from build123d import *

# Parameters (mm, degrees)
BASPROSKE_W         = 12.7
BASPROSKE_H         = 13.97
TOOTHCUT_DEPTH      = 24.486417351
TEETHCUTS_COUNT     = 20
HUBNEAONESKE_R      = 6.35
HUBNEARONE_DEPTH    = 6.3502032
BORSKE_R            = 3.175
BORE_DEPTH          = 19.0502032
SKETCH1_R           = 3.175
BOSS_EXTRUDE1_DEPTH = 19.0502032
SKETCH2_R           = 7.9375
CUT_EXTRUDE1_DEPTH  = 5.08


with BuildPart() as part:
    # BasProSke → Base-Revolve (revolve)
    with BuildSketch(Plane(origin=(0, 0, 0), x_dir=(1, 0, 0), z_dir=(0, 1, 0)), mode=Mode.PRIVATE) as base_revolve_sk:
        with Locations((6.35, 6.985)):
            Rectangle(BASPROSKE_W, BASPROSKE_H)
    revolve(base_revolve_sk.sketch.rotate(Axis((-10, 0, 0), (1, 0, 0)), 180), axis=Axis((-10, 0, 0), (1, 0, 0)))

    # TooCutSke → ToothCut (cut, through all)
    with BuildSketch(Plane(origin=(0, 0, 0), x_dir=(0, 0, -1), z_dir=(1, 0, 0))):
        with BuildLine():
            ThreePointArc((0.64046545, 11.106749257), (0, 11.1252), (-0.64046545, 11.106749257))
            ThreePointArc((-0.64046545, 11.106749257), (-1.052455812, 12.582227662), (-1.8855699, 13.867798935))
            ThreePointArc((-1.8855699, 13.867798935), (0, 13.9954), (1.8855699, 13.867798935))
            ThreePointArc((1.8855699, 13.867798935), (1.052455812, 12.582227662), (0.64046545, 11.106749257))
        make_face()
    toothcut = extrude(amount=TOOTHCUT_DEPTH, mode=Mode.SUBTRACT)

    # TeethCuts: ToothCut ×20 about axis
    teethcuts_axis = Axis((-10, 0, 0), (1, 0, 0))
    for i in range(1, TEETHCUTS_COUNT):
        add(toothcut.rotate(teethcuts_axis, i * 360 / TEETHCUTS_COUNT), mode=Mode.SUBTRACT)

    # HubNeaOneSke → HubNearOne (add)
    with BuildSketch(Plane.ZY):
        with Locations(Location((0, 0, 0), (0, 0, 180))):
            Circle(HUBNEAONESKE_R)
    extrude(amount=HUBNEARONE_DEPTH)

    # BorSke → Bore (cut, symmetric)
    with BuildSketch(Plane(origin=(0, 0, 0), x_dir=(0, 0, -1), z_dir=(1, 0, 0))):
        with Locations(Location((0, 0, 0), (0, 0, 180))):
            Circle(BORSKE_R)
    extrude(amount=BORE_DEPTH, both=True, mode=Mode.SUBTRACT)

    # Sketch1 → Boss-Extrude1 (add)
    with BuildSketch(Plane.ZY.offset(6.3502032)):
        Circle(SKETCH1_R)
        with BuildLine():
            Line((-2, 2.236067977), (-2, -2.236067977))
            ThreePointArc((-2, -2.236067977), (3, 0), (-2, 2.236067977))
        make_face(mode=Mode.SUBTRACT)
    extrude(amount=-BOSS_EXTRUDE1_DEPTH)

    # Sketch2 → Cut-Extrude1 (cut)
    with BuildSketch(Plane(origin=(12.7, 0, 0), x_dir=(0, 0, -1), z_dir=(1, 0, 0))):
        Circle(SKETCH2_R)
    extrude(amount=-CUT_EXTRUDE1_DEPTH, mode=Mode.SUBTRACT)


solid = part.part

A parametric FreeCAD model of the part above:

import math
import FreeCAD as App
import Part
import Sketcher
from FreeCAD import Vector
Q = App.Units.Quantity


def add_polygon(sketch, points):
    """Adds a closed chain of lines whose ends are joined by coincident constraints."""
    first, n = sketch.GeometryCount, len(points)
    for a, b in zip(points, points[1:] + points[:1]):
        sketch.addGeometry(Part.LineSegment(App.Vector(*a, 0), App.Vector(*b, 0)), False)
    for i in range(n):
        sketch.addConstraint(Sketcher.Constraint("Coincident", first + i, 2, first + (i + 1) % n, 1))

doc = App.newDocument("Part")
params = doc.addObject("Spreadsheet::Sheet", "Params")
for row, (alias, value) in enumerate([
    ("sketch1_width", "0.5 in"),
    ("sketch1_height", "0.55 in"),
    ("revolution_angle", "360 deg"),
    ("sketch2_radius", "0.2 in"),
    ("sketch2_radius2", "0.438 in"),
    ("sketch2_radius3", "0.551 in"),
    ("sketch3_diameter", "0.5 in"),
    ("pad1_length", "6.350203 mm"),
    ("sketch4_diameter", "0.25 in"),
    ("pocket2_length", "38.100406 mm"),
    ("sketch5_diameter", "0.25 in"),
    ("pad2_length", "19.050203 mm"),
    ("sketch6_diameter", "0.625 in"),
    ("pocket3_length", "0.2 in"),
], start=1):
    params.set(f"A{row}", alias)
    params.set(f"B{row}", "=" + value)
    params.setAlias(f"B{row}", alias)

body = doc.addObject("PartDesign::Body", "Body")

# Sketch on XZ plane
sketch1 = body.newObject("Sketcher::SketchObject", "Sketch")
sketch1.AttachmentSupport = (doc.getObject("XZ_Plane"), [""])
sketch1.MapMode = "FlatFace"
add_polygon(sketch1, [(0, -14), (0, 0), (13, 0), (13, -14)])  # lines 0-3
sketch1.addConstraint([
    Sketcher.Constraint("Vertical", 0),
    Sketcher.Constraint("Horizontal", 1),
    Sketcher.Constraint("Vertical", 2),
    Sketcher.Constraint("Horizontal", 3),
    Sketcher.Constraint("Coincident", 0, 2, -1, 1),
    Sketcher.Constraint("DistanceX", 1, 1, 1, 2, Q("0.5 in")),
    Sketcher.Constraint("DistanceY", 0, 1, 0, 2, Q("0.55 in")),
])
sketch1.setExpression("Constraints[9]", "Params.sketch1_width")
sketch1.setExpression("Constraints[10]", "Params.sketch1_height")
revolution = body.newObject("PartDesign::Revolution", "Revolution")
revolution.Profile = sketch1
revolution.ReferenceAxis = (sketch1, ["H_Axis"])
revolution.setExpression("Angle", "Params.revolution_angle")

# Sketch on YZ plane
sketch2 = body.newObject("Sketcher::SketchObject", "Sketch001")
sketch2.AttachmentSupport = (doc.getObject("YZ_Plane"), [""])
sketch2.MapMode = "FlatFace"
sketch2.addGeometry([
    Part.ArcOfCircle(Part.Circle(Vector(0, 0, 0), Vector(0, 0, 1), 11.1), math.radians(-3.3), math.radians(3.3)),
    Part.ArcOfCircle(Part.Circle(Vector(10.5, -5.7, 0), Vector(0, 0, 1), 5.1), math.radians(48), math.radians(83)),
    Part.ArcOfCircle(Part.Circle(Vector(0, 0, 0), Vector(0, 0, 1), 14), math.radians(-7.74), math.radians(7.74)),
    Part.ArcOfCircle(Part.Circle(Vector(10.5, 5.7, 0), Vector(0, 0, 1), 5.1), math.radians(-83), math.radians(-48)),
], False)
sketch2.addConstraint([
    Sketcher.Constraint("Coincident", 0, 1, 1, 2),
    Sketcher.Constraint("Coincident", 1, 1, 2, 1),
    Sketcher.Constraint("Coincident", 2, 2, 3, 2),
    Sketcher.Constraint("Coincident", 3, 1, 0, 2),
    Sketcher.Constraint("Coincident", 0, 3, -1, 1),
    Sketcher.Constraint("Coincident", 2, 3, -1, 1),
    Sketcher.Constraint("Equal", 1, 3),
    Sketcher.Constraint("Symmetric", 1, 3, 3, 3, -1),
    Sketcher.Constraint("Radius", 1, Q("0.2 in")),
    Sketcher.Constraint("Radius", 0, Q("0.438 in")),
    Sketcher.Constraint("Radius", 2, Q("0.551 in")),
    Sketcher.Constraint("DistanceX", -1, 1, 1, 1, 13.867799),
    Sketcher.Constraint("DistanceY", 1, 3, 0, 1, 5.042898),
])
sketch2.setExpression("Constraints[8]", "Params.sketch2_radius")
sketch2.setExpression("Constraints[9]", "Params.sketch2_radius2")
sketch2.setExpression("Constraints[10]", "Params.sketch2_radius3")
pocket1 = body.newObject("PartDesign::Pocket", "Pocket")
pocket1.Profile = sketch2
pocket1.Type = "ThroughAll"
pocket1.Reversed = True
doc.recompute()

polarpattern = body.newObject("PartDesign::PolarPattern", "PolarPattern")
polarpattern.Originals = [pocket1]
polarpattern.Axis = (doc.getObject("X_Axis"), [""])
polarpattern.Angle = 360
polarpattern.Occurrences = 20
body.Tip = polarpattern

# Sketch on YZ plane
sketch3 = body.newObject("Sketcher::SketchObject", "Sketch002")
sketch3.AttachmentSupport = (doc.getObject("YZ_Plane"), [""])
sketch3.MapMode = "FlatFace"
sketch3.addGeometry(Part.Circle(Vector(0, 0, 0), Vector(0, 0, 1), 6), False)
sketch3.addConstraint([
    Sketcher.Constraint("Coincident", 0, 3, -1, 1),
    Sketcher.Constraint("Diameter", 0, Q("0.5 in")),
])
sketch3.setExpression("Constraints[1]", "Params.sketch3_diameter")
pad1 = body.newObject("PartDesign::Pad", "Pad")
pad1.Profile = sketch3
pad1.setExpression("Length", "Params.pad1_length")
pad1.Reversed = True

# Sketch on YZ plane
sketch4 = body.newObject("Sketcher::SketchObject", "Sketch003")
sketch4.AttachmentSupport = (doc.getObject("YZ_Plane"), [""])
sketch4.MapMode = "FlatFace"
sketch4.addGeometry(Part.Circle(Vector(0, 0, 0), Vector(0, 0, 1), 3.2), False)
sketch4.addConstraint([
    Sketcher.Constraint("Coincident", 0, 3, -1, 1),
    Sketcher.Constraint("Diameter", 0, Q("0.25 in")),
])
sketch4.setExpression("Constraints[1]", "Params.sketch4_diameter")
pocket2 = body.newObject("PartDesign::Pocket", "Pocket001")
pocket2.Profile = sketch4
pocket2.setExpression("Length", "Params.pocket2_length")
pocket2.Midplane = True

# Sketch on YZ plane
sketch5 = body.newObject("Sketcher::SketchObject", "Sketch004")
sketch5.AttachmentSupport = (doc.getObject("YZ_Plane"), [""])
sketch5.MapMode = "FlatFace"
sketch5.AttachmentOffset = App.Placement(Vector(0, 0, -6.350203), App.Rotation())
sketch5.addGeometry([
    Part.Circle(Vector(0, 0, 0), Vector(0, 0, 1), 3.2),
    Part.LineSegment(Vector(-2.2, -2, 0), Vector(2.2, -2, 0)),
    Part.ArcOfCircle(Part.Circle(Vector(0, 0, 0), Vector(0, 0, 1), 3), math.radians(-42), math.radians(222)),
], False)
sketch5.addConstraint([
    Sketcher.Constraint("Coincident", 1, 1, 2, 2),
    Sketcher.Constraint("Coincident", 2, 1, 1, 2),
    Sketcher.Constraint("Horizontal", 1),
    Sketcher.Constraint("Coincident", 0, 3, -1, 1),
    Sketcher.Constraint("Coincident", 2, 3, -1, 1),
    Sketcher.Constraint("Diameter", 0, Q("0.25 in")),
    Sketcher.Constraint("Radius", 2, 3.0),
    Sketcher.Constraint("DistanceY", 1, 1, -1, 1, 2.0),
])
sketch5.setExpression("Constraints[5]", "Params.sketch5_diameter")
pad2 = body.newObject("PartDesign::Pad", "Pad001")
pad2.Profile = sketch5
pad2.setExpression("Length", "Params.pad2_length")

# Sketch on YZ plane
sketch6 = body.newObject("Sketcher::SketchObject", "Sketch005")
sketch6.AttachmentSupport = (doc.getObject("YZ_Plane"), [""])
sketch6.MapMode = "FlatFace"
sketch6.AttachmentOffset = App.Placement(Vector(0, 0, 0.5 * 25.4), App.Rotation())
sketch6.addGeometry(Part.Circle(Vector(0, 0, 0), Vector(0, 0, 1), 8), False)
sketch6.addConstraint([
    Sketcher.Constraint("Coincident", 0, 3, -1, 1),
    Sketcher.Constraint("Diameter", 0, Q("0.625 in")),
])
sketch6.setExpression("Constraints[1]", "Params.sketch6_diameter")
pocket3 = body.newObject("PartDesign::Pocket", "Pocket002")
pocket3.Profile = sketch6
pocket3.setExpression("Length", "Params.pocket3_length")

doc.recompute()
